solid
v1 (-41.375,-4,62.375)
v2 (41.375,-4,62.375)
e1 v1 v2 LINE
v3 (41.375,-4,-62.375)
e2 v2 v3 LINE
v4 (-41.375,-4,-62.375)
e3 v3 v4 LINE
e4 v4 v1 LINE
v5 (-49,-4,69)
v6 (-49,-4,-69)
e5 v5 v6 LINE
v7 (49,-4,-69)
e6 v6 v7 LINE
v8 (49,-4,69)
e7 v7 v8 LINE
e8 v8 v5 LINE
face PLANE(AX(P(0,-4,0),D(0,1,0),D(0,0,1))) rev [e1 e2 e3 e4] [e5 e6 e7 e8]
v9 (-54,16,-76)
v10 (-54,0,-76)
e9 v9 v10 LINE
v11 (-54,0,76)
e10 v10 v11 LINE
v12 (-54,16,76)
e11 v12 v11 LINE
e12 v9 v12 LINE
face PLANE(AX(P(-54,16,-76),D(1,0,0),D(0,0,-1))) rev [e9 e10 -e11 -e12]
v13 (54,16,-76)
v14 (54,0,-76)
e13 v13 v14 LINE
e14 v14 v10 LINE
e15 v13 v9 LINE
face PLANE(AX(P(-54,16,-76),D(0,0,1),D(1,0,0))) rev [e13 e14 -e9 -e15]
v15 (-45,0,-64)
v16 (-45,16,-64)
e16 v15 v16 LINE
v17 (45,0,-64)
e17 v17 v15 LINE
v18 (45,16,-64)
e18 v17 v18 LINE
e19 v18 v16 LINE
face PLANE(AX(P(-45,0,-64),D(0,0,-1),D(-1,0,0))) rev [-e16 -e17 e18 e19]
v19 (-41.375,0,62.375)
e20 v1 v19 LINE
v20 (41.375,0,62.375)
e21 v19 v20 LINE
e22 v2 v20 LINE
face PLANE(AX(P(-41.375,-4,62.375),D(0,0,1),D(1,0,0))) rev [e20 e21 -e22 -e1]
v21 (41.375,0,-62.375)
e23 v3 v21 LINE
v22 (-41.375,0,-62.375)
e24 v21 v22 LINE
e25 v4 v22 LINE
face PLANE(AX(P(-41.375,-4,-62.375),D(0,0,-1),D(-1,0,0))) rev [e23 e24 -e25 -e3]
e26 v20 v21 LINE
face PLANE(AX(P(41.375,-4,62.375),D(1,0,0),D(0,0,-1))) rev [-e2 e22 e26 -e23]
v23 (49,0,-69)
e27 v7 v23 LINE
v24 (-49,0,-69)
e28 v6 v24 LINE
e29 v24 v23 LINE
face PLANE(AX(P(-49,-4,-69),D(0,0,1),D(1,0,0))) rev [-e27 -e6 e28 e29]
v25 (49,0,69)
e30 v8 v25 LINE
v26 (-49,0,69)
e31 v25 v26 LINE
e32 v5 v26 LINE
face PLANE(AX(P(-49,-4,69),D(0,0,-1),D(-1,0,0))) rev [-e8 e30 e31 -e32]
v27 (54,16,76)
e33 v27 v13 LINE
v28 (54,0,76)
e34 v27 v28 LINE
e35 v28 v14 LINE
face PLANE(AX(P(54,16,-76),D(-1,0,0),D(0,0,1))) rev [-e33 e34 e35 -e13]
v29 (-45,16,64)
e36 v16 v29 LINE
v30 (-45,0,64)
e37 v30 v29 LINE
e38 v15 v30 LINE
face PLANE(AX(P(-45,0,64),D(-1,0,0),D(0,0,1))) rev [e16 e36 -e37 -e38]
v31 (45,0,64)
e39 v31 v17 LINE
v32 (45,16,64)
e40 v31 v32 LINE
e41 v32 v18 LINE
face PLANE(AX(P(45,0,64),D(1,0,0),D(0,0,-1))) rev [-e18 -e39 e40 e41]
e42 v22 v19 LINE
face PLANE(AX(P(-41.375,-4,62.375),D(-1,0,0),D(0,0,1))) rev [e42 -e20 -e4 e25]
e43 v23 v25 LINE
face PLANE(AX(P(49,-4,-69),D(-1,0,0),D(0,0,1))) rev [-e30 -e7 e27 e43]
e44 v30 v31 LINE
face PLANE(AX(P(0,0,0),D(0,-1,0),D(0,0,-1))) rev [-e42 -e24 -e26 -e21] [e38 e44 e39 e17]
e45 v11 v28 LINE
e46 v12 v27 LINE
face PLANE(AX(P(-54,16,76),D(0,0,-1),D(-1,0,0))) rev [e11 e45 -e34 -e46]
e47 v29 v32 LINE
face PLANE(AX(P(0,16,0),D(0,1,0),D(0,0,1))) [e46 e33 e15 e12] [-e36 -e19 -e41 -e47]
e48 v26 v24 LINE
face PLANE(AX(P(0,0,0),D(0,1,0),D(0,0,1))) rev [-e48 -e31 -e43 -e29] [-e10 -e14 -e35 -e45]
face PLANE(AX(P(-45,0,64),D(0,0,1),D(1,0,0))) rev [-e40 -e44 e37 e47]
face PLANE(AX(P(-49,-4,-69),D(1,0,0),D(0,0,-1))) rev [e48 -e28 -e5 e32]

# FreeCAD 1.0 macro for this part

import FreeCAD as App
import Part
import Sketcher

V = App.Vector
Q = App.Units.Quantity

doc = App.newDocument("Part")
body = doc.addObject("PartDesign::Body", "Body")

# Sketch on XZ plane
sketch1 = body.newObject("Sketcher::SketchObject", "Sketch")
sketch1.AttachmentSupport = (doc.getObject("XZ_Plane"), [""])
sketch1.MapMode = "FlatFace"
sketch1.addGeometry([
    Part.LineSegment(V(-54, -76, 0), V(-54, 76, 0)),
    Part.LineSegment(V(-54, 76, 0), V(54, 76, 0)),
    Part.LineSegment(V(54, 76, 0), V(54, -76, 0)),
    Part.LineSegment(V(54, -76, 0), V(-54, -76, 0)),
], False)
sketch1.addConstraint([
    Sketcher.Constraint("Coincident", 0, 2, 1, 1),
    Sketcher.Constraint("Coincident", 1, 2, 2, 1),
    Sketcher.Constraint("Coincident", 2, 2, 3, 1),
    Sketcher.Constraint("Coincident", 3, 2, 0, 1),
    Sketcher.Constraint("Vertical", 0),
    Sketcher.Constraint("Horizontal", 1),
    Sketcher.Constraint("Vertical", 2),
    Sketcher.Constraint("Horizontal", 3),
    Sketcher.Constraint("Symmetric", 0, 2, 2, 2, -1, 1),
    Sketcher.Constraint("DistanceX", 1, 1, 1, 2, Q("108 mm")),
    Sketcher.Constraint("DistanceY", 0, 1, 0, 2, Q("152 mm")),
])
pad1 = body.newObject("PartDesign::Pad", "Pad")
pad1.Profile = sketch1
pad1.Length = 16
pad1.Reversed = True

# Sketch on XZ plane
sketch2 = body.newObject("Sketcher::SketchObject", "Sketch001")
sketch2.AttachmentSupport = (doc.getObject("XZ_Plane"), [""])
sketch2.MapMode = "FlatFace"
sketch2.addGeometry([
    Part.LineSegment(V(-49, 69, 0), V(-49, -69, 0)),
    Part.LineSegment(V(-49, -69, 0), V(49, -69, 0)),
    Part.LineSegment(V(49, -69, 0), V(49, 69, 0)),
    Part.LineSegment(V(49, 69, 0), V(-49, 69, 0)),
], False)
sketch2.addConstraint([
    Sketcher.Constraint("Coincident", 0, 2, 1, 1),
    Sketcher.Constraint("Coincident", 1, 2, 2, 1),
    Sketcher.Constraint("Coincident", 2, 2, 3, 1),
    Sketcher.Constraint("Coincident", 3, 2, 0, 1),
    Sketcher.Constraint("Vertical", 0),
    Sketcher.Constraint("Horizontal", 1),
    Sketcher.Constraint("Vertical", 2),
    Sketcher.Constraint("Horizontal", 3),
    Sketcher.Constraint("Symmetric", 0, 2, 2, 2, -1, 1),
    Sketcher.Constraint("DistanceX", 1, 1, 1, 2, Q("98 mm")),
    Sketcher.Constraint("DistanceY", 0, 2, 0, 1, Q("138 mm")),
])
pad2 = body.newObject("PartDesign::Pad", "Pad001")
pad2.Profile = sketch2
pad2.Length = 4

# Sketch on XZ plane
sketch3 = body.newObject("Sketcher::SketchObject", "Sketch002")
sketch3.AttachmentSupport = (doc.getObject("XZ_Plane"), [""])
sketch3.MapMode = "FlatFace"
sketch3.AttachmentOffset = App.Placement(V(0, 0, -16), App.Rotation())
sketch3.addGeometry([
    Part.LineSegment(V(-41.375, -62.375, 0), V(-41.375, 62.375, 0)),
    Part.LineSegment(V(-41.375, 62.375, 0), V(41.375, 62.375, 0)),
    Part.LineSegment(V(41.375, 62.375, 0), V(41.375, -62.375, 0)),
    Part.LineSegment(V(41.375, -62.375, 0), V(-41.375, -62.375, 0)),
], False)
sketch3.addConstraint([
    Sketcher.Constraint("Coincident", 0, 2, 1, 1),
    Sketcher.Constraint("Coincident", 1, 2, 2, 1),
    Sketcher.Constraint("Coincident", 2, 2, 3, 1),
    Sketcher.Constraint("Coincident", 3, 2, 0, 1),
    Sketcher.Constraint("Vertical", 0),
    Sketcher.Constraint("Horizontal", 1),
    Sketcher.Constraint("Vertical", 2),
    Sketcher.Constraint("Horizontal", 3),
    Sketcher.Constraint("Symmetric", 0, 2, 2, 2, -1, 1),
    Sketcher.Constraint("DistanceX", 1, 1, 1, 2, Q("82.75 mm")),
    Sketcher.Constraint("DistanceY", 0, 1, 0, 2, Q("124.75 mm")),
])
pocket1 = body.newObject("PartDesign::Pocket", "Pocket")
pocket1.Profile = sketch3
pocket1.Type = "ThroughAll"
pocket1.Reversed = True

# Sketch on XZ plane
sketch4 = body.newObject("Sketcher::SketchObject", "Sketch003")
sketch4.AttachmentSupport = (doc.getObject("XZ_Plane"), [""])
sketch4.MapMode = "FlatFace"
sketch4.AttachmentOffset = App.Placement(V(0, 0, -16), App.Rotation())
sketch4.addGeometry([
    Part.LineSegment(V(-45, -64, 0), V(-45, 64, 0)),
    Part.LineSegment(V(-45, 64, 0), V(45, 64, 0)),
    Part.LineSegment(V(45, 64, 0), V(45, -64, 0)),
    Part.LineSegment(V(45, -64, 0), V(-45, -64, 0)),
], False)
sketch4.addConstraint([
    Sketcher.Constraint("Coincident", 0, 2, 1, 1),
    Sketcher.Constraint("Coincident", 1, 2, 2, 1),
    Sketcher.Constraint("Coincident", 2, 2, 3, 1),
    Sketcher.Constraint("Coincident", 3, 2, 0, 1),
    Sketcher.Constraint("Vertical", 0),
    Sketcher.Constraint("Horizontal", 1),
    Sketcher.Constraint("Vertical", 2),
    Sketcher.Constraint("Horizontal", 3),
    Sketcher.Constraint("Symmetric", 0, 2, 2, 2, -1, 1),
    Sketcher.Constraint("DistanceX", 1, 1, 1, 2, Q("90 mm")),
    Sketcher.Constraint("DistanceY", 0, 1, 0, 2, Q("128 mm")),
])
pocket2 = body.newObject("PartDesign::Pocket", "Pocket001")
pocket2.Profile = sketch4
pocket2.Length = 16
pocket2.Reversed = True

doc.recompute()
